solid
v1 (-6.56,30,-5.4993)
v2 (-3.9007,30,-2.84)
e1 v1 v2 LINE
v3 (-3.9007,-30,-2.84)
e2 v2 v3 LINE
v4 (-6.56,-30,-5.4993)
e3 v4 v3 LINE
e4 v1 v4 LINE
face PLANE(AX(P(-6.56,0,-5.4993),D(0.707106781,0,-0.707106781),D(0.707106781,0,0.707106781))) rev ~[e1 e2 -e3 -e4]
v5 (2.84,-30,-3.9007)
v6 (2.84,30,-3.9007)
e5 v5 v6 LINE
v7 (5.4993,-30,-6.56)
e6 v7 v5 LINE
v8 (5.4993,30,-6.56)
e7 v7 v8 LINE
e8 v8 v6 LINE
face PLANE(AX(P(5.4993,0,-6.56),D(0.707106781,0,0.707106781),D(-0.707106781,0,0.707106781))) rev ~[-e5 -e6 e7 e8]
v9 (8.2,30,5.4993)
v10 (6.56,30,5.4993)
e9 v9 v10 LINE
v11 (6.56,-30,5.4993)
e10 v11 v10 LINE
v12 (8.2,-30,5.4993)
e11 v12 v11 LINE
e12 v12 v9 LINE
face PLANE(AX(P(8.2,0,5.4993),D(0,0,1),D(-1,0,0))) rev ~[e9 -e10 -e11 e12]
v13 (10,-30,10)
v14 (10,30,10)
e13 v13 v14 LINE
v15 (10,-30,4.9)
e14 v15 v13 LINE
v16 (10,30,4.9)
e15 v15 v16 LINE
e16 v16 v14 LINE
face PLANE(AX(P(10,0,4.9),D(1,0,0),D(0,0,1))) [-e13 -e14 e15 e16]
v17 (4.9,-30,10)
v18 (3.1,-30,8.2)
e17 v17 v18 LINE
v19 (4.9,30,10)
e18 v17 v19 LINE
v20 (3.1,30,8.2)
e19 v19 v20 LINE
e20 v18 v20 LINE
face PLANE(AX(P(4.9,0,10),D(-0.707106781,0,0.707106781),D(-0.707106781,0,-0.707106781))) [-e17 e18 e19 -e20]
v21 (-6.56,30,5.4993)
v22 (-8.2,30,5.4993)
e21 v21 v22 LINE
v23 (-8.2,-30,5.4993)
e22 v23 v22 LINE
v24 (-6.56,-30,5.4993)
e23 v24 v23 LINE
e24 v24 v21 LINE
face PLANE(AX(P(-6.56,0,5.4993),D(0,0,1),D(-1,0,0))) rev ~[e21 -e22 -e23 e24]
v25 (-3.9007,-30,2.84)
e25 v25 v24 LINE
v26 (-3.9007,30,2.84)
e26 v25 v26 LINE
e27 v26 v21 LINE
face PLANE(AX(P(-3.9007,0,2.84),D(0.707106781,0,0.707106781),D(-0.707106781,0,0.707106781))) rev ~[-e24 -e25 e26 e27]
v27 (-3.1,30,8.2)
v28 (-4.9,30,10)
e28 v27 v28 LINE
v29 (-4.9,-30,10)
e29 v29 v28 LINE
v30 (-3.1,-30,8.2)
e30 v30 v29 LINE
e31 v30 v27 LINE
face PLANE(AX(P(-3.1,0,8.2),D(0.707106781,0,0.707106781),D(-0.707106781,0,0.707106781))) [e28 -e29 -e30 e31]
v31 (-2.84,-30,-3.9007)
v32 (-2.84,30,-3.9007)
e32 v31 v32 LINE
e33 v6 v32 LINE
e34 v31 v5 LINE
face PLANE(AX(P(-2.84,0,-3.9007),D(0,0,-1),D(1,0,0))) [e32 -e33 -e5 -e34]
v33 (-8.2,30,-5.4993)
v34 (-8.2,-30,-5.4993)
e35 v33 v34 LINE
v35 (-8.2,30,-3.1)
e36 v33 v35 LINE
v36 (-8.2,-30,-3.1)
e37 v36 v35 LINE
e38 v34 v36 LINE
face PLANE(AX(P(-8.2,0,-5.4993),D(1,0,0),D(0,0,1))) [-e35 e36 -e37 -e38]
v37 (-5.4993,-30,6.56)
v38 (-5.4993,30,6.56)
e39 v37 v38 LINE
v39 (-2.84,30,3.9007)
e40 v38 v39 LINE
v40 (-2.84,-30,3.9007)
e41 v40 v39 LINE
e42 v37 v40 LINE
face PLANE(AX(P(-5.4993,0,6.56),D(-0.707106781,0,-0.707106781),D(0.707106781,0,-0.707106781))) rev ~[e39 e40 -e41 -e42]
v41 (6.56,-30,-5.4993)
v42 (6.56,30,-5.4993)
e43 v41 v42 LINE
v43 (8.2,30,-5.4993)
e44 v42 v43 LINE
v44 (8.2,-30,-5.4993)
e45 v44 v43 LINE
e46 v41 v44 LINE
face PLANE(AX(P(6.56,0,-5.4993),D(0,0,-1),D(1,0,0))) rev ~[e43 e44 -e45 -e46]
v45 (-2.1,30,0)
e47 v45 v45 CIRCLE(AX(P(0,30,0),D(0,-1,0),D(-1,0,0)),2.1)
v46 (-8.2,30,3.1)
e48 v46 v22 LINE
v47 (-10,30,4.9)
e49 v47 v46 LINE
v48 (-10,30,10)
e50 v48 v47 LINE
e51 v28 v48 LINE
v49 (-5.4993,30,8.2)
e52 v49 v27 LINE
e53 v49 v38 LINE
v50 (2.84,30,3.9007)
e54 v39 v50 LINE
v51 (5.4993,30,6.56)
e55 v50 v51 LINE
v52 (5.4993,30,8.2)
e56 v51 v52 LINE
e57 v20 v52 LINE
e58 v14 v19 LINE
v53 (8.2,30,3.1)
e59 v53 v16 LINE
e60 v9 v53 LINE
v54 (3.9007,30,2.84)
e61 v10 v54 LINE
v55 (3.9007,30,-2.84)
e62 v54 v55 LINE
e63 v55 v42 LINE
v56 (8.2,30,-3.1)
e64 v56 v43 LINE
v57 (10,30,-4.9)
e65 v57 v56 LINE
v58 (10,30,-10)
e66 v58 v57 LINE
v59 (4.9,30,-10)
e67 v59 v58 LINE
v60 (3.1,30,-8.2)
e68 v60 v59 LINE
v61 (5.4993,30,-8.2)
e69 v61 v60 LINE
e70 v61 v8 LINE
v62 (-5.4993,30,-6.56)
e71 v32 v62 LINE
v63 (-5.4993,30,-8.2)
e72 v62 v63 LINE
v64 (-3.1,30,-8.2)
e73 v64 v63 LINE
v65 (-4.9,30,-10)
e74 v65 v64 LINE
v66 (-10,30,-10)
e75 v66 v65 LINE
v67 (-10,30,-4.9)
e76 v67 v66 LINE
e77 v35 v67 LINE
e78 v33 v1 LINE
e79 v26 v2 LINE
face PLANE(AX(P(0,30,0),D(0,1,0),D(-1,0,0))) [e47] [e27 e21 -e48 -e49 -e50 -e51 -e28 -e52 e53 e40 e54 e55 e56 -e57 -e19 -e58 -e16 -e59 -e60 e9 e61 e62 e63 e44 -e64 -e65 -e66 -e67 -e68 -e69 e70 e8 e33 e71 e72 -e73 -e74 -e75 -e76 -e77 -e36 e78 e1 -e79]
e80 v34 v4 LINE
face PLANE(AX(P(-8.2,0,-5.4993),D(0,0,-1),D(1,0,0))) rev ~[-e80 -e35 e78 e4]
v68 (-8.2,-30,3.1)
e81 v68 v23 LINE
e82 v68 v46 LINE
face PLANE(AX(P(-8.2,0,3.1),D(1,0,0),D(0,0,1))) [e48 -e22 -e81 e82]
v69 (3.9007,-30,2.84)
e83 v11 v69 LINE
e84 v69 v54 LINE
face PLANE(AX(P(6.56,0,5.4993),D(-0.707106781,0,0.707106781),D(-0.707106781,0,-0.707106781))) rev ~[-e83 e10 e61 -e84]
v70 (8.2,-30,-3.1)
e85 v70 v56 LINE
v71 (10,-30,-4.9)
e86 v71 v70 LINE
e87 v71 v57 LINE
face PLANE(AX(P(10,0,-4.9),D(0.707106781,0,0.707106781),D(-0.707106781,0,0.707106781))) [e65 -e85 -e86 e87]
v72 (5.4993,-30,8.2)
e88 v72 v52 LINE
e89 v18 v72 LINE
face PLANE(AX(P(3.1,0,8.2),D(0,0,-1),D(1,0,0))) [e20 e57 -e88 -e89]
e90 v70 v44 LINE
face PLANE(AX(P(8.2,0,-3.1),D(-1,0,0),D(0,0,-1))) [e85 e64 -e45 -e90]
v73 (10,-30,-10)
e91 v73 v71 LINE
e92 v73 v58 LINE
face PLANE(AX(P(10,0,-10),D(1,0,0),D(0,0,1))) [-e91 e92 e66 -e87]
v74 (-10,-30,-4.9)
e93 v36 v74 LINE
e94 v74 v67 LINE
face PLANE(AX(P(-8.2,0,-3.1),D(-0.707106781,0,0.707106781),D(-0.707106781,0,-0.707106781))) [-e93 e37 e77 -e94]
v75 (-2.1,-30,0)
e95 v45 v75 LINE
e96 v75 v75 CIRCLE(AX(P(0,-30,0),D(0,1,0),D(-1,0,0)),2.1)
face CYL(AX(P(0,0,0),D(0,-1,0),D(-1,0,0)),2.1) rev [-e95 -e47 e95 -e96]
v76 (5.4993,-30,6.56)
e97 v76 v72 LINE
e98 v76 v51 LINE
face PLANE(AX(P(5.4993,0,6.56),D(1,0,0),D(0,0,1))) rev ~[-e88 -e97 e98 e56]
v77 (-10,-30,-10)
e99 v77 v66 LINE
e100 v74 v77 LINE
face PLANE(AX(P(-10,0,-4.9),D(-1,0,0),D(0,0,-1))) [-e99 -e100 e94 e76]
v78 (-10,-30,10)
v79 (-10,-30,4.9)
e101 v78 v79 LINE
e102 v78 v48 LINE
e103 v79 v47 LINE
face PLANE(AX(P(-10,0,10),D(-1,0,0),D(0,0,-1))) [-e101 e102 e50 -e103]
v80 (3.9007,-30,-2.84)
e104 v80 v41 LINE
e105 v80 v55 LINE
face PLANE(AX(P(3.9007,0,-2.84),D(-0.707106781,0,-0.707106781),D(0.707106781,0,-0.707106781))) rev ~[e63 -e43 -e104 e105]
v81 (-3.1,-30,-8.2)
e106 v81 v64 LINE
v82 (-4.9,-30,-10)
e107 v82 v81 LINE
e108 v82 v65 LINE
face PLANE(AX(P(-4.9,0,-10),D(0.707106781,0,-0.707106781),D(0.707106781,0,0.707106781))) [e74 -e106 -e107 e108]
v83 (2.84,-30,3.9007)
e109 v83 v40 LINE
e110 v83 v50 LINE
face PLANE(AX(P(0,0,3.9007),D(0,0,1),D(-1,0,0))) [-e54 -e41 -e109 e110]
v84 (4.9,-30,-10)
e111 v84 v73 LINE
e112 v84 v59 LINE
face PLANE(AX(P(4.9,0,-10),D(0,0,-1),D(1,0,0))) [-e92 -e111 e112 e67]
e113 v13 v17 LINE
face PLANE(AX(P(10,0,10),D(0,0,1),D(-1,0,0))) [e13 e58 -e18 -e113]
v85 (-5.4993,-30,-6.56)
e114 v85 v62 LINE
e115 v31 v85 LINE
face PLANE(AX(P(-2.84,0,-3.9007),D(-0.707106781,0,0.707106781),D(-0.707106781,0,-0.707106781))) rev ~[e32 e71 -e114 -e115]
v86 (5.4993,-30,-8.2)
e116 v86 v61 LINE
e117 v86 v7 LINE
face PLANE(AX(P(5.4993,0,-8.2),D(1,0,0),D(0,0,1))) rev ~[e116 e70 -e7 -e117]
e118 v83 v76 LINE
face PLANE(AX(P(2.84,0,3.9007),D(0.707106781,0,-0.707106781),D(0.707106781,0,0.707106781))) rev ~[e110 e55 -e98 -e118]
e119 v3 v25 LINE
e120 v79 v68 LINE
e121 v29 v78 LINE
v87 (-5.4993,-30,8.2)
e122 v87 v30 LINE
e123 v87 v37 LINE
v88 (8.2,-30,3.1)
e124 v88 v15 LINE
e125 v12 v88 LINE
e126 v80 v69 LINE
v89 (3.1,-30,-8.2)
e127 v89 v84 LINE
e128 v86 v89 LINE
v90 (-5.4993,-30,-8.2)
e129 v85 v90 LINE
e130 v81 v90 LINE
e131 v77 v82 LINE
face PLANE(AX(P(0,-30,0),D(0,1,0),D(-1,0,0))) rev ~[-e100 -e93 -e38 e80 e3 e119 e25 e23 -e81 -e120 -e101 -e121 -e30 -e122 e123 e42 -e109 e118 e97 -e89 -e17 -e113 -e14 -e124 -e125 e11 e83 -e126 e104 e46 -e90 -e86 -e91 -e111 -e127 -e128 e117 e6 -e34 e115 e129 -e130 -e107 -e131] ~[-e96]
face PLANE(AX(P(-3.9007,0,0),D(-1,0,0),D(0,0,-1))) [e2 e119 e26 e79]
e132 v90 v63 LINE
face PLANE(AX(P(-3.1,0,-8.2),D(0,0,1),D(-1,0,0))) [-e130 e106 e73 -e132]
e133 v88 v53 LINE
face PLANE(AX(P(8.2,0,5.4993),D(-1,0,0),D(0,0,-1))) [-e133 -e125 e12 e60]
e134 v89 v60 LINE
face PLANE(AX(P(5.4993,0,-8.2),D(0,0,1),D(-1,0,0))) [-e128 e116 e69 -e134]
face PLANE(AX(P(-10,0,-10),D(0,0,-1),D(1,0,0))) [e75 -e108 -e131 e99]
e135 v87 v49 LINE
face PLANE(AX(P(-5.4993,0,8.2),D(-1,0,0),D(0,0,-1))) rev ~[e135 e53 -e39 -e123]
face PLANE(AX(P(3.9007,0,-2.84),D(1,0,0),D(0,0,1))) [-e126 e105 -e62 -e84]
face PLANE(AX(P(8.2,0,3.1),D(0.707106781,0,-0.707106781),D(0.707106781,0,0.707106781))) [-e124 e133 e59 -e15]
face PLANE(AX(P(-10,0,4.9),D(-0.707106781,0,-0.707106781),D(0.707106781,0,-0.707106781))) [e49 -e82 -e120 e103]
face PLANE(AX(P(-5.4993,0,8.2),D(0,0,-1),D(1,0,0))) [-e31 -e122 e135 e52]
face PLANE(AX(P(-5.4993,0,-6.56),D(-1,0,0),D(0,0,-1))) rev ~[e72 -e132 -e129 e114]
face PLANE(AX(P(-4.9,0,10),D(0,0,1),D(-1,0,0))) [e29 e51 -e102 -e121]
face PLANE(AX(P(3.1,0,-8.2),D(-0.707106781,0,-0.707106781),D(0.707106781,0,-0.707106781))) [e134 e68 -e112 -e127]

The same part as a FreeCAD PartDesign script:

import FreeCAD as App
import Part
import Sketcher
Q = App.Units.Quantity

doc = App.newDocument("Part")
body = doc.addObject("PartDesign::Body", "Body")

# Sketch on XZ plane
sketch1 = doc.addObject("Sketcher::SketchObject", "Sketch")
body.addObject(sketch1)
sketch1.AttachmentSupport = (doc.XZ_Plane, [""])
sketch1.MapMode = "FlatFace"
sketch1.addGeometry([
    Part.LineSegment(App.Vector(-3.9, -2.8, 0), App.Vector(-3.9, 2.8, 0)),  # 0
    Part.LineSegment(App.Vector(-3.9, 2.8, 0), App.Vector(-6.6, 5.5, 0)),  # 1
    Part.LineSegment(App.Vector(-6.6, 5.5, 0), App.Vector(-8.2, 5.5, 0)),  # 2
    Part.LineSegment(App.Vector(-8.2, 5.5, 0), App.Vector(-8.2, 3.1, 0)),  # 3
    Part.LineSegment(App.Vector(-8.2, 3.1, 0), App.Vector(-10, 4.9, 0)),  # 4
    Part.LineSegment(App.Vector(-10, 4.9, 0), App.Vector(-10, 10, 0)),  # 5
    Part.LineSegment(App.Vector(-10, 10, 0), App.Vector(-4.9, 10, 0)),  # 6
    Part.LineSegment(App.Vector(-4.9, 10, 0), App.Vector(-3.1, 8.2, 0)),  # 7
    Part.LineSegment(App.Vector(-3.1, 8.2, 0), App.Vector(-5.5, 8.2, 0)),  # 8
    Part.LineSegment(App.Vector(-5.5, 8.2, 0), App.Vector(-5.5, 6.6, 0)),  # 9
    Part.LineSegment(App.Vector(-5.5, 6.6, 0), App.Vector(-2.8, 3.9, 0)),  # 10
    Part.LineSegment(App.Vector(-2.8, 3.9, 0), App.Vector(2.8, 3.9, 0)),  # 11
    Part.LineSegment(App.Vector(2.8, 3.9, 0), App.Vector(5.5, 6.6, 0)),  # 12
    Part.LineSegment(App.Vector(5.5, 6.6, 0), App.Vector(5.5, 8.2, 0)),  # 13
    Part.LineSegment(App.Vector(5.5, 8.2, 0), App.Vector(3.1, 8.2, 0)),  # 14
    Part.LineSegment(App.Vector(3.1, 8.2, 0), App.Vector(4.9, 10, 0)),  # 15
    Part.LineSegment(App.Vector(4.9, 10, 0), App.Vector(10, 10, 0)),  # 16
    Part.LineSegment(App.Vector(10, 10, 0), App.Vector(10, 4.9, 0)),  # 17
    Part.LineSegment(App.Vector(10, 4.9, 0), App.Vector(8.2, 3.1, 0)),  # 18
    Part.LineSegment(App.Vector(8.2, 3.1, 0), App.Vector(8.2, 5.5, 0)),  # 19
    Part.LineSegment(App.Vector(8.2, 5.5, 0), App.Vector(6.6, 5.5, 0)),  # 20
    Part.LineSegment(App.Vector(6.6, 5.5, 0), App.Vector(3.9, 2.8, 0)),  # 21
    Part.LineSegment(App.Vector(3.9, 2.8, 0), App.Vector(3.9, -2.8, 0)),  # 22
    Part.LineSegment(App.Vector(3.9, -2.8, 0), App.Vector(6.6, -5.5, 0)),  # 23
    Part.LineSegment(App.Vector(6.6, -5.5, 0), App.Vector(8.2, -5.5, 0)),  # 24
    Part.LineSegment(App.Vector(8.2, -5.5, 0), App.Vector(8.2, -3.1, 0)),  # 25
    Part.LineSegment(App.Vector(8.2, -3.1, 0), App.Vector(10, -4.9, 0)),  # 26
    Part.LineSegment(App.Vector(10, -4.9, 0), App.Vector(10, -10, 0)),  # 27
    Part.LineSegment(App.Vector(10, -10, 0), App.Vector(4.9, -10, 0)),  # 28
    Part.LineSegment(App.Vector(4.9, -10, 0), App.Vector(3.1, -8.2, 0)),  # 29
    Part.LineSegment(App.Vector(3.1, -8.2, 0), App.Vector(5.5, -8.2, 0)),  # 30
    Part.LineSegment(App.Vector(5.5, -8.2, 0), App.Vector(5.5, -6.6, 0)),  # 31
    Part.LineSegment(App.Vector(5.5, -6.6, 0), App.Vector(2.8, -3.9, 0)),  # 32
    Part.LineSegment(App.Vector(2.8, -3.9, 0), App.Vector(-2.8, -3.9, 0)),  # 33
    Part.LineSegment(App.Vector(-2.8, -3.9, 0), App.Vector(-5.5, -6.6, 0)),  # 34
    Part.LineSegment(App.Vector(-5.5, -6.6, 0), App.Vector(-5.5, -8.2, 0)),  # 35
    Part.LineSegment(App.Vector(-5.5, -8.2, 0), App.Vector(-3.1, -8.2, 0)),  # 36
    Part.LineSegment(App.Vector(-3.1, -8.2, 0), App.Vector(-4.9, -10, 0)),  # 37
    Part.LineSegment(App.Vector(-4.9, -10, 0), App.Vector(-10, -10, 0)),  # 38
    Part.LineSegment(App.Vector(-10, -10, 0), App.Vector(-10, -4.9, 0)),  # 39
    Part.LineSegment(App.Vector(-10, -4.9, 0), App.Vector(-8.2, -3.1, 0)),  # 40
    Part.LineSegment(App.Vector(-8.2, -3.1, 0), App.Vector(-8.2, -5.5, 0)),  # 41
    Part.LineSegment(App.Vector(-8.2, -5.5, 0), App.Vector(-6.6, -5.5, 0)),  # 42
    Part.LineSegment(App.Vector(-6.6, -5.5, 0), App.Vector(-3.9, -2.8, 0)),  # 43
    Part.Circle(App.Vector(0, 0, 0), App.Vector(0, 0, 1), 2.1),  # 44
], False)
sketch1.addConstraint([
    Sketcher.Constraint("Coincident", 0, 2, 1, 1),
    Sketcher.Constraint("Coincident", 1, 2, 2, 1),
    Sketcher.Constraint("Coincident", 2, 2, 3, 1),
    Sketcher.Constraint("Coincident", 3, 2, 4, 1),
    Sketcher.Constraint("Coincident", 4, 2, 5, 1),
    Sketcher.Constraint("Coincident", 5, 2, 6, 1),
    Sketcher.Constraint("Coincident", 6, 2, 7, 1),
    Sketcher.Constraint("Coincident", 7, 2, 8, 1),
    Sketcher.Constraint("Coincident", 8, 2, 9, 1),
    Sketcher.Constraint("Coincident", 9, 2, 10, 1),
    Sketcher.Constraint("Coincident", 10, 2, 11, 1),
    Sketcher.Constraint("Coincident", 11, 2, 12, 1),
    Sketcher.Constraint("Coincident", 12, 2, 13, 1),
    Sketcher.Constraint("Coincident", 13, 2, 14, 1),
    Sketcher.Constraint("Coincident", 14, 2, 15, 1),
    Sketcher.Constraint("Coincident", 15, 2, 16, 1),
    Sketcher.Constraint("Coincident", 16, 2, 17, 1),
    Sketcher.Constraint("Coincident", 17, 2, 18, 1),
    Sketcher.Constraint("Coincident", 18, 2, 19, 1),
    Sketcher.Constraint("Coincident", 19, 2, 20, 1),
    Sketcher.Constraint("Coincident", 20, 2, 21, 1),
    Sketcher.Constraint("Coincident", 21, 2, 22, 1),
    Sketcher.Constraint("Coincident", 22, 2, 23, 1),
    Sketcher.Constraint("Coincident", 23, 2, 24, 1),
    Sketcher.Constraint("Coincident", 24, 2, 25, 1),
    Sketcher.Constraint("Coincident", 25, 2, 26, 1),
    Sketcher.Constraint("Coincident", 26, 2, 27, 1),
    Sketcher.Constraint("Coincident", 27, 2, 28, 1),
    Sketcher.Constraint("Coincident", 28, 2, 29, 1),
    Sketcher.Constraint("Coincident", 29, 2, 30, 1),
    Sketcher.Constraint("Coincident", 30, 2, 31, 1),
    Sketcher.Constraint("Coincident", 31, 2, 32, 1),
    Sketcher.Constraint("Coincident", 32, 2, 33, 1),
    Sketcher.Constraint("Coincident", 33, 2, 34, 1),
    Sketcher.Constraint("Coincident", 34, 2, 35, 1),
    Sketcher.Constraint("Coincident", 35, 2, 36, 1),
    Sketcher.Constraint("Coincident", 36, 2, 37, 1),
    Sketcher.Constraint("Coincident", 37, 2, 38, 1),
    Sketcher.Constraint("Coincident", 38, 2, 39, 1),
    Sketcher.Constraint("Coincident", 39, 2, 40, 1),
    Sketcher.Constraint("Coincident", 40, 2, 41, 1),
    Sketcher.Constraint("Coincident", 41, 2, 42, 1),
    Sketcher.Constraint("Coincident", 42, 2, 43, 1),
    Sketcher.Constraint("Coincident", 43, 2, 0, 1),
    Sketcher.Constraint("Vertical", 0),
    Sketcher.Constraint("Horizontal", 2),
    Sketcher.Constraint("Vertical", 3),
    Sketcher.Constraint("Vertical", 5),
    Sketcher.Constraint("Horizontal", 6),
    Sketcher.Constraint("Horizontal", 8),
    Sketcher.Constraint("Vertical", 9),
    Sketcher.Constraint("Horizontal", 11),
    Sketcher.Constraint("Vertical", 13),
    Sketcher.Constraint("Horizontal", 14),
    Sketcher.Constraint("Horizontal", 16),
    Sketcher.Constraint("Vertical", 17),
    Sketcher.Constraint("Vertical", 19),
    Sketcher.Constraint("Horizontal", 20),
    Sketcher.Constraint("Vertical", 22),
    Sketcher.Constraint("Horizontal", 24),
    Sketcher.Constraint("Vertical", 25),
    Sketcher.Constraint("Vertical", 27),
    Sketcher.Constraint("Horizontal", 28),
    Sketcher.Constraint("Horizontal", 30),
    Sketcher.Constraint("Vertical", 31),
    Sketcher.Constraint("Horizontal", 33),
    Sketcher.Constraint("Vertical", 35),
    Sketcher.Constraint("Horizontal", 36),
    Sketcher.Constraint("Horizontal", 38),
    Sketcher.Constraint("Vertical", 39),
    Sketcher.Constraint("Vertical", 41),
    Sketcher.Constraint("Horizontal", 42),
    Sketcher.Constraint("Coincident", 44, 3, -1, 1),
    Sketcher.Constraint("Symmetric", 0, 2, 22, 2, -1, 1),
    Sketcher.Constraint("Symmetric", 1, 2, 23, 2, -1, 1),
    Sketcher.Constraint("Symmetric", 3, 2, 25, 2, -1, 1),
    Sketcher.Constraint("Symmetric", 4, 2, 26, 2, -1, 1),
    Sketcher.Constraint("Symmetric", 6, 2, 28, 2, -1, 1),
    Sketcher.Constraint("Symmetric", 7, 2, 29, 2, -1, 1),
    Sketcher.Constraint("Symmetric", 9, 2, 31, 2, -1, 1),
    Sketcher.Constraint("Symmetric", 10, 2, 32, 2, -1, 1),
    Sketcher.Constraint("Symmetric", 12, 2, 34, 2, -1, 1),
    Sketcher.Constraint("Symmetric", 14, 2, 36, 2, -1, 1),
    Sketcher.Constraint("Symmetric", 15, 2, 37, 2, -1, 1),
    Sketcher.Constraint("Symmetric", 17, 2, 39, 2, -1, 1),
    Sketcher.Constraint("Symmetric", 18, 2, 40, 2, -1, 1),
    Sketcher.Constraint("Symmetric", 20, 2, 42, 2, -1, 1),
    Sketcher.Constraint("Symmetric", 9, 2, 12, 2, -2),
    Sketcher.Constraint("Symmetric", 7, 2, 14, 2, -2),
    Sketcher.Constraint("Symmetric", 6, 2, 15, 2, -2),
    Sketcher.Constraint("Symmetric", 4, 2, 17, 2, -2),
    Sketcher.Constraint("Symmetric", 3, 2, 18, 2, -2),
    Sketcher.Constraint("Symmetric", 1, 2, 20, 2, -2),
    Sketcher.Constraint("Parallel", 1, 4),
    Sketcher.Constraint("Parallel", 4, 7),
    Sketcher.Constraint("Parallel", 7, 10),
    Sketcher.Constraint("Perpendicular", 10, 12),
    Sketcher.Constraint("Parallel", 12, 15),
    Sketcher.Constraint("Parallel", 18, 21),
    Sketcher.Constraint("Perpendicular", 32, 34),
    Sketcher.Constraint("Parallel", 40, 43),
    Sketcher.Constraint("Equal", 33, 0),
    Sketcher.Constraint("Equal", 36, 3),
    Sketcher.Constraint("Equal", 38, 5),
    Sketcher.Constraint("Equal", 42, 9),
    Sketcher.Constraint("Equal", 4, 7),
    Sketcher.Constraint("Equal", 1, 10),
    Sketcher.Constraint("Diameter", 44, Q("4.2 mm")),
    Sketcher.Constraint("DistanceX", 4, 2, -1, 1, Q("10 mm")),
    Sketcher.Constraint("DistanceX", 2, 2, 2, 1, Q("1.64 mm")),
    Sketcher.Constraint("DistanceY", -1, 1, 3, 2, Q("3.1 mm")),
    Sketcher.Constraint("DistanceX", 4, 2, 2, 2, Q("1.8 mm")),
    Sketcher.Constraint("DistanceY", -1, 1, 0, 2, Q("2.84 mm")),
    Sketcher.Constraint("DistanceX", 8, 2, 8, 1, Q("2.3993 mm")),
])
pad1 = doc.addObject("PartDesign::Pad", "Pad")
body.addObject(pad1)
pad1.Profile = sketch1
pad1.Length = 60
pad1.Midplane = True

doc.recompute()
